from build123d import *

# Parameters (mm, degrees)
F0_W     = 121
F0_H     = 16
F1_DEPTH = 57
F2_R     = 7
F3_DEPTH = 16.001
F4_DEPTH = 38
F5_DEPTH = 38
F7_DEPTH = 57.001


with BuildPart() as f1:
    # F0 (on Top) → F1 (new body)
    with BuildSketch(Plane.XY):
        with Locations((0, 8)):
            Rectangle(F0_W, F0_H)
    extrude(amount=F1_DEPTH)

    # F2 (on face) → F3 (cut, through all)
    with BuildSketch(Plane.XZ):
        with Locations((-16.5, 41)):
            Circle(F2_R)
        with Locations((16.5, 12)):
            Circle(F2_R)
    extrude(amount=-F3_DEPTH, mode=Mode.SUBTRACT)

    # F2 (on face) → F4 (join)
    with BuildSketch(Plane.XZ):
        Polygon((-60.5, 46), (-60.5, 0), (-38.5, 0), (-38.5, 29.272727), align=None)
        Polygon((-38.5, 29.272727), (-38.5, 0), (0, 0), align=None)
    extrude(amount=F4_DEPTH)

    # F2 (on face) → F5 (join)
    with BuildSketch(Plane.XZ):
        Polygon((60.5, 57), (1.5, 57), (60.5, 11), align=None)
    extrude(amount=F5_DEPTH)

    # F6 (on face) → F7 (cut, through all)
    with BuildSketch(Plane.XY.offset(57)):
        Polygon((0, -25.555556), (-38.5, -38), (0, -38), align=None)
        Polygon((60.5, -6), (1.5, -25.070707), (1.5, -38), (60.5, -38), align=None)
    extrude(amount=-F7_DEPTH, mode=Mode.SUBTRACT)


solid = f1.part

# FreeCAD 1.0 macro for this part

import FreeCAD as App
import Part
import Sketcher

V = App.Vector


def add_polygon(sketch, points):
    """Adds a closed chain of lines whose ends are joined by coincident constraints."""
    first, n = sketch.GeometryCount, len(points)
    for a, b in zip(points, points[1:] + points[:1]):
        sketch.addGeometry(Part.LineSegment(App.Vector(*a, 0), App.Vector(*b, 0)), False)
    for i in range(n):
        sketch.addConstraint(Sketcher.Constraint("Coincident", first + i, 2, first + (i + 1) % n, 1))

doc = App.newDocument("Part")
params = doc.addObject("Spreadsheet::Sheet", "Params")
for row, (alias, value) in enumerate([
    ("sketch1_width", "121 mm"),
    ("sketch1_height", "16 mm"),
    ("pad1_length", "57 mm"),
    ("sketch2_diameter", "14 mm"),
    ("sketch3_height", "46 mm"),
    ("sketch3_width", "60.5 mm"),
    ("pad2_length", "38 mm"),
    ("sketch4_width", "59 mm"),
    ("sketch4_height", "46 mm"),
    ("pad3_length", "38 mm"),
    ("sketch5_width", "59 mm"),
    ("sketch5_height", "32 mm"),
    ("sketch5_width2", "38.5 mm"),
], start=1):
    params.set(f"A{row}", alias)
    params.set(f"B{row}", "=" + value)
    params.setAlias(f"B{row}", alias)

body = doc.addObject("PartDesign::Body", "Body")

sketch1 = doc.addObject("Sketcher::SketchObject", "Sketch")
body.addObject(sketch1)
sketch1.AttachmentSupport = (doc.XY_Plane, [""])
sketch1.MapMode = "FlatFace"
add_polygon(sketch1, [(-60.5, 16), (-60.5, 0), (60.5, 0), (60.5, 16)])
sketch1.addConstraint(Sketcher.Constraint("Vertical", 0))
sketch1.addConstraint(Sketcher.Constraint("Horizontal", 1))
sketch1.addConstraint(Sketcher.Constraint("Vertical", 2))
sketch1.addConstraint(Sketcher.Constraint("Horizontal", 3))
sketch1.addConstraint(Sketcher.Constraint("Symmetric", 0, 2, 1, 2, -1, 1))
sketch1.addConstraint(Sketcher.Constraint("DistanceX", 1, 1, 1, 2, 121.0))
sketch1.addConstraint(Sketcher.Constraint("DistanceY", 0, 2, 0, 1, 16.0))
sketch1.setExpression("Constraints[9]", "Params.sketch1_width")
sketch1.setExpression("Constraints[10]", "Params.sketch1_height")
pad1 = doc.addObject("PartDesign::Pad", "Pad")
body.addObject(pad1)
pad1.Profile = sketch1
pad1.setExpression("Length", "Params.pad1_length")

sketch2 = doc.addObject("Sketcher::SketchObject", "Sketch001")
body.addObject(sketch2)
sketch2.AttachmentSupport = (doc.XZ_Plane, [""])
sketch2.MapMode = "FlatFace"
sketch2.addGeometry(Part.Circle(V(-16.5, 41, 0), V(0, 0, 1), 7), False)
sketch2.addGeometry(Part.Circle(V(16.5, 12, 0), V(0, 0, 1), 7), False)
sketch2.addConstraint(Sketcher.Constraint("Equal", 0, 1))
sketch2.addConstraint(Sketcher.Constraint("Diameter", 0, 14.0))
sketch2.addConstraint(Sketcher.Constraint("DistanceY", -1, 1, 0, 3, 41.0))
sketch2.addConstraint(Sketcher.Constraint("DistanceY", -1, 1, 1, 3, 12.0))
sketch2.addConstraint(Sketcher.Constraint("DistanceX", 0, 3, 1, 3, 33.0))
sketch2.addConstraint(Sketcher.Constraint("DistanceX", 0, 3, -1, 1, 16.5))
sketch2.setExpression("Constraints[1]", "Params.sketch2_diameter")
pocket1 = doc.addObject("PartDesign::Pocket", "Pocket")
body.addObject(pocket1)
pocket1.Profile = sketch2
pocket1.Type = "ThroughAll"

sketch3 = doc.addObject("Sketcher::SketchObject", "Sketch002")
body.addObject(sketch3)
sketch3.AttachmentSupport = (doc.XZ_Plane, [""])
sketch3.MapMode = "FlatFace"
add_polygon(sketch3, [(-60.5, 46), (-60.5, 0), (0, 0), (-38.5, 29.272727)])
sketch3.addConstraint(Sketcher.Constraint("Vertical", 0))
sketch3.addConstraint(Sketcher.Constraint("Horizontal", 1))
sketch3.addConstraint(Sketcher.Constraint("Coincident", 1, 2, -1, 1))
sketch3.addConstraint(Sketcher.Constraint("Parallel", 2, 3))
sketch3.addConstraint(Sketcher.Constraint("DistanceY", 0, 2, 0, 1, 46.0))
sketch3.addConstraint(Sketcher.Constraint("DistanceX", 1, 1, 1, 2, 60.5))
sketch3.addConstraint(Sketcher.Constraint("DistanceX", 0, 2, 2, 2, 22.0))
sketch3.setExpression("Constraints[8]", "Params.sketch3_height")
sketch3.setExpression("Constraints[9]", "Params.sketch3_width")
pad2 = doc.addObject("PartDesign::Pad", "Pad001")
body.addObject(pad2)
pad2.Profile = sketch3
pad2.setExpression("Length", "Params.pad2_length")

sketch4 = doc.addObject("Sketcher::SketchObject", "Sketch003")
body.addObject(sketch4)
sketch4.AttachmentSupport = (doc.XZ_Plane, [""])
sketch4.MapMode = "FlatFace"
add_polygon(sketch4, [(60.5, 57), (1.5, 57), (60.5, 11)])
sketch4.addConstraint(Sketcher.Constraint("Horizontal", 0))
sketch4.addConstraint(Sketcher.Constraint("Vertical", 2))
sketch4.addConstraint(Sketcher.Constraint("DistanceX", 0, 2, 0, 1, 59.0))
sketch4.addConstraint(Sketcher.Constraint("DistanceY", 2, 1, 2, 2, 46.0))
sketch4.addConstraint(Sketcher.Constraint("DistanceY", -1, 1, 0, 2, 57.0))
sketch4.addConstraint(Sketcher.Constraint("DistanceX", -1, 1, 0, 2, 1.5))
sketch4.setExpression("Constraints[5]", "Params.sketch4_width")
sketch4.setExpression("Constraints[6]", "Params.sketch4_height")
pad3 = doc.addObject("PartDesign::Pad", "Pad002")
body.addObject(pad3)
pad3.Profile = sketch4
pad3.setExpression("Length", "Params.pad3_length")

sketch5 = doc.addObject("Sketcher::SketchObject", "Sketch004")
body.addObject(sketch5)
sketch5.AttachmentSupport = (doc.XY_Plane, [""])
sketch5.MapMode = "FlatFace"
sketch5.AttachmentOffset = App.Placement(V(0, 0, 57), App.Rotation())
add_polygon(sketch5, [(0, -25.555556), (-38.5, -38), (0, -38)])
add_polygon(sketch5, [(60.5, -6), (1.5, -25.070707), (1.5, -38), (60.5, -38)])
sketch5.addConstraint(Sketcher.Constraint("Horizontal", 1))
sketch5.addConstraint(Sketcher.Constraint("Vertical", 2))
sketch5.addConstraint(Sketcher.Constraint("Vertical", 4))
sketch5.addConstraint(Sketcher.Constraint("Horizontal", 5))
sketch5.addConstraint(Sketcher.Constraint("Vertical", 6))
sketch5.addConstraint(Sketcher.Constraint("PointOnObject", 1, 2, -2))
sketch5.addConstraint(Sketcher.Constraint("Parallel", 0, 3))
sketch5.addConstraint(Sketcher.Constraint("Horizontal", 1, 2, 4, 2))
sketch5.addConstraint(Sketcher.Constraint("DistanceX", 5, 1, 5, 2, 59.0))
sketch5.addConstraint(Sketcher.Constraint("DistanceY", 6, 1, 6, 2, 32.0))
sketch5.addConstraint(Sketcher.Constraint("DistanceX", 1, 1, 1, 2, 38.5))
sketch5.addConstraint(Sketcher.Constraint("DistanceY", 0, 2, -1, 1, 38.0))
sketch5.addConstraint(Sketcher.Constraint("DistanceX", 0, 2, 3, 2, 40.0))
sketch5.addConstraint(Sketcher.Constraint("Distance", 3, 62.005579))
sketch5.setExpression("Constraints[15]", "Params.sketch5_width")
sketch5.setExpression("Constraints[16]", "Params.sketch5_height")
sketch5.setExpression("Constraints[17]", "Params.sketch5_width2")
pocket2 = doc.addObject("PartDesign::Pocket", "Pocket001")
body.addObject(pocket2)
pocket2.Profile = sketch5
pocket2.Type = "ThroughAll"

doc.recompute()
